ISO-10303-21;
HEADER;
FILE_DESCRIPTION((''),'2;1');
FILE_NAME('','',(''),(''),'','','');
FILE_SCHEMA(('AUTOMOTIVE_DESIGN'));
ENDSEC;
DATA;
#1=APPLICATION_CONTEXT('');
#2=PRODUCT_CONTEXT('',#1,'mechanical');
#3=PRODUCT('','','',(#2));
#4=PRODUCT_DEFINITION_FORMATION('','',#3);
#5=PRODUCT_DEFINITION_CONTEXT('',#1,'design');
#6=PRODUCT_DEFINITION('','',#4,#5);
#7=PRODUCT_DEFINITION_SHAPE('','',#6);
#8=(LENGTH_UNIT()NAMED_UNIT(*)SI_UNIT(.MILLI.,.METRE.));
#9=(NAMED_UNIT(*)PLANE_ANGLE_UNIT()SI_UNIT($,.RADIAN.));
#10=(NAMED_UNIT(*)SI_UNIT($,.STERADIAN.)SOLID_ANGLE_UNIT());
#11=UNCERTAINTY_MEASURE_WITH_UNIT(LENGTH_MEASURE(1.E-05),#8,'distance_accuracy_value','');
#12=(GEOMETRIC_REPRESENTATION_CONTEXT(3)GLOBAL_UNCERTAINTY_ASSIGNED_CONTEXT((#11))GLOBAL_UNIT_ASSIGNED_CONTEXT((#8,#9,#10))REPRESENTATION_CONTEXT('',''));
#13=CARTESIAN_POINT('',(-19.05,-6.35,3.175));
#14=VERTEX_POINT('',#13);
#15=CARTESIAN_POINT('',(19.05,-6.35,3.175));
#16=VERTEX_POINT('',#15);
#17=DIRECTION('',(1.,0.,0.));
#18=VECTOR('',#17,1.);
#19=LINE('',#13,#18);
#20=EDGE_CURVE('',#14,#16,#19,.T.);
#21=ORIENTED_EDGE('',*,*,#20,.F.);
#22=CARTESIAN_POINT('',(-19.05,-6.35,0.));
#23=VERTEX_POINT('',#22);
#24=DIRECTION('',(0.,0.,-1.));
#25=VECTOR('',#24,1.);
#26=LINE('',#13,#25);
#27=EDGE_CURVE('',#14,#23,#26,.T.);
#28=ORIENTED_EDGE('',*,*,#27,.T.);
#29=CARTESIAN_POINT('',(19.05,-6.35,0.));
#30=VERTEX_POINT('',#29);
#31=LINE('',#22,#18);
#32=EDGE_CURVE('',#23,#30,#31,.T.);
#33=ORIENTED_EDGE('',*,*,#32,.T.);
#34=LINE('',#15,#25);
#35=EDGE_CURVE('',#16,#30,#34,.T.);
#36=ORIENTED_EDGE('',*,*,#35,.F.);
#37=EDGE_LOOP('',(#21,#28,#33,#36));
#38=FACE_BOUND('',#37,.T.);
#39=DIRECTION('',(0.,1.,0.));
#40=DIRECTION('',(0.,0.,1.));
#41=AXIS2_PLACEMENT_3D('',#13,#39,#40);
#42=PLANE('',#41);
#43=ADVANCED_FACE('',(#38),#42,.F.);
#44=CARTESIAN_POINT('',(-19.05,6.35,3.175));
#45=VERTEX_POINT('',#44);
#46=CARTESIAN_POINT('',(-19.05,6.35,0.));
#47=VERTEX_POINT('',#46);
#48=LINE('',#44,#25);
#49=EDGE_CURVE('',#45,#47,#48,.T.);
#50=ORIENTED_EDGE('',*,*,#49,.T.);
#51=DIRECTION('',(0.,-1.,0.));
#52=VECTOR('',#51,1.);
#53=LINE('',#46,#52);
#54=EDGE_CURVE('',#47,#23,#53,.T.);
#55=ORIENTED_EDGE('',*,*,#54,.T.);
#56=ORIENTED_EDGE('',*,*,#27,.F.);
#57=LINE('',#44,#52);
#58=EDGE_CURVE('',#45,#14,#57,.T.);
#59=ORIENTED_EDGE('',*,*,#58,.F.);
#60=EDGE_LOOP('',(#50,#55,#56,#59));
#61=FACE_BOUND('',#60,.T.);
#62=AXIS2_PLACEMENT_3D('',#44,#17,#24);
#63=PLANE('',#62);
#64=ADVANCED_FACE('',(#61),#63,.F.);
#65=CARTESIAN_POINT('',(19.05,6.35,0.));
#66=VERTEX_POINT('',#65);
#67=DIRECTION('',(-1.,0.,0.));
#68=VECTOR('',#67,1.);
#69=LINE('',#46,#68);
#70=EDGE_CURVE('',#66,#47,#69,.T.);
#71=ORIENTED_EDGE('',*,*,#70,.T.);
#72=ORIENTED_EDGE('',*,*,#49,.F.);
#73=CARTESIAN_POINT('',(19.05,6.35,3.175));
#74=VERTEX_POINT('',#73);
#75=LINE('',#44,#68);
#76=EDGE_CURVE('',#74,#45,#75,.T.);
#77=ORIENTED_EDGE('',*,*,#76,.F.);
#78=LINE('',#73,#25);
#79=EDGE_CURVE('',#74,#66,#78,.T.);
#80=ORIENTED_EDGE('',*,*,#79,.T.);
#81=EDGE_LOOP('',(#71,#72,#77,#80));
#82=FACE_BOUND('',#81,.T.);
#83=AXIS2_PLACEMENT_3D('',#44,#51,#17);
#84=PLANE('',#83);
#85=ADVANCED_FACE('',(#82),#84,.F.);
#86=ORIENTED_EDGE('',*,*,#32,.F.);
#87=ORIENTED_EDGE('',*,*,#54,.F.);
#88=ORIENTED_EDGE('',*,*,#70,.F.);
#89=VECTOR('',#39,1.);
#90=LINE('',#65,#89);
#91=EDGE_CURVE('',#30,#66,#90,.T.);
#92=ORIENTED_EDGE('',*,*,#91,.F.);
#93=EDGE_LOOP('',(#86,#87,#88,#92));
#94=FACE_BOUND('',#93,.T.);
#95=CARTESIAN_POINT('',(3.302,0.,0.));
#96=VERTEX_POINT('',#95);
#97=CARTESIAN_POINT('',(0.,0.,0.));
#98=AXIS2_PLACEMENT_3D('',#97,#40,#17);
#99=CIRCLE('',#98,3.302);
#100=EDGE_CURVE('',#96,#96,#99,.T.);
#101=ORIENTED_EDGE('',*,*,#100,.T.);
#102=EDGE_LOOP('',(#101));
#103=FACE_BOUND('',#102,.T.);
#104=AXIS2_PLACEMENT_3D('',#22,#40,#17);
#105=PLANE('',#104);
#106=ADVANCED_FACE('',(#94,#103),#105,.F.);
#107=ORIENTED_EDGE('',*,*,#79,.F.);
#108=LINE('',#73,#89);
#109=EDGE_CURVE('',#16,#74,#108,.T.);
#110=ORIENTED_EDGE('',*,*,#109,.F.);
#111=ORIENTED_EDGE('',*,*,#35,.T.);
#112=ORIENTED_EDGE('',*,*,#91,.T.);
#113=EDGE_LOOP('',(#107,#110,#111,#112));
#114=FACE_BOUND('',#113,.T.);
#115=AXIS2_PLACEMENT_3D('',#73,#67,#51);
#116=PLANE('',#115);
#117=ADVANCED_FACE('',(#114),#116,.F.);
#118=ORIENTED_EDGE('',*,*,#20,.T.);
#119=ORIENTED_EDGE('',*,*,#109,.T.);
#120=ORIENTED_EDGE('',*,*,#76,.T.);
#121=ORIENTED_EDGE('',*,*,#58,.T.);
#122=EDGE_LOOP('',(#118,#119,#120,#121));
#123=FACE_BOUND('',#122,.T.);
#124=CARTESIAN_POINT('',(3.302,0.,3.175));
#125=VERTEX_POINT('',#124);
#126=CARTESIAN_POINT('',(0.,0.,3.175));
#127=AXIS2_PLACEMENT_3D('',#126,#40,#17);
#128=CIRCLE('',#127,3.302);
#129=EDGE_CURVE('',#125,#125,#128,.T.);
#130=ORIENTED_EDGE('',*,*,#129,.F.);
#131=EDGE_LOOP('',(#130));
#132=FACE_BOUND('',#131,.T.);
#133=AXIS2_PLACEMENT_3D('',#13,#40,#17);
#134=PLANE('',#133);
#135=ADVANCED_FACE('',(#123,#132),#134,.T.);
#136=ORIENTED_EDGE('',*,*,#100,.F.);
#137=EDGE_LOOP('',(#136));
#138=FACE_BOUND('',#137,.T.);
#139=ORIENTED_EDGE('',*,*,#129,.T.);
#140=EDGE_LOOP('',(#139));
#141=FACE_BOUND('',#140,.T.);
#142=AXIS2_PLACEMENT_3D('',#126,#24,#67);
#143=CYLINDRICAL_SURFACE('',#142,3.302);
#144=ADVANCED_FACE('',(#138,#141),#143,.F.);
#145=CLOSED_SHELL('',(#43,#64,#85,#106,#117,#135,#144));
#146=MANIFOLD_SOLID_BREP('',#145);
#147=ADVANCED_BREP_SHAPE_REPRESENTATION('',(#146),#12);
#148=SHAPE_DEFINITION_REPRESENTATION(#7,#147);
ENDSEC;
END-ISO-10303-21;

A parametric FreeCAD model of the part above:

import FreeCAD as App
import Part
import Sketcher
Q = App.Units.Quantity

doc = App.newDocument("Part")
body = doc.addObject("PartDesign::Body", "Body")

sketch1 = body.newObject("Sketcher::SketchObject", "Sketch")
sketch1.AttachmentSupport = (doc.getObject("XY_Plane"), [""])
sketch1.MapMode = "FlatFace"
sketch1.addGeometry([
    Part.LineSegment(App.Vector(-19.1, 6.3, 0), App.Vector(-19.1, -6.3, 0)),
    Part.LineSegment(App.Vector(-19.1, -6.3, 0), App.Vector(19.1, -6.3, 0)),
    Part.LineSegment(App.Vector(19.1, -6.3, 0), App.Vector(19.1, 6.3, 0)),
    Part.LineSegment(App.Vector(19.1, 6.3, 0), App.Vector(-19.1, 6.3, 0)),
    Part.Circle(App.Vector(0, 0, 0), App.Vector(0, 0, 1), 3.3),
], False)
sketch1.addConstraint([
    Sketcher.Constraint("Coincident", 0, 2, 1, 1),
    Sketcher.Constraint("Coincident", 1, 2, 2, 1),
    Sketcher.Constraint("Coincident", 2, 2, 3, 1),
    Sketcher.Constraint("Coincident", 3, 2, 0, 1),
    Sketcher.Constraint("Vertical", 0),
    Sketcher.Constraint("Horizontal", 1),
    Sketcher.Constraint("Vertical", 2),
    Sketcher.Constraint("Horizontal", 3),
    Sketcher.Constraint("Coincident", 4, 3, -1, 1),
    Sketcher.Constraint("Symmetric", 0, 2, 2, 2, -1, 1),
    Sketcher.Constraint("Diameter", 4, Q("0.26 in")),
    Sketcher.Constraint("DistanceX", 1, 1, 1, 2, Q("1.5 in")),
    Sketcher.Constraint("DistanceY", 0, 2, 0, 1, Q("0.5 in")),
])
pad1 = body.newObject("PartDesign::Pad", "Pad")
pad1.Profile = sketch1
pad1.Length = Q("0.125 in")

doc.recompute()
